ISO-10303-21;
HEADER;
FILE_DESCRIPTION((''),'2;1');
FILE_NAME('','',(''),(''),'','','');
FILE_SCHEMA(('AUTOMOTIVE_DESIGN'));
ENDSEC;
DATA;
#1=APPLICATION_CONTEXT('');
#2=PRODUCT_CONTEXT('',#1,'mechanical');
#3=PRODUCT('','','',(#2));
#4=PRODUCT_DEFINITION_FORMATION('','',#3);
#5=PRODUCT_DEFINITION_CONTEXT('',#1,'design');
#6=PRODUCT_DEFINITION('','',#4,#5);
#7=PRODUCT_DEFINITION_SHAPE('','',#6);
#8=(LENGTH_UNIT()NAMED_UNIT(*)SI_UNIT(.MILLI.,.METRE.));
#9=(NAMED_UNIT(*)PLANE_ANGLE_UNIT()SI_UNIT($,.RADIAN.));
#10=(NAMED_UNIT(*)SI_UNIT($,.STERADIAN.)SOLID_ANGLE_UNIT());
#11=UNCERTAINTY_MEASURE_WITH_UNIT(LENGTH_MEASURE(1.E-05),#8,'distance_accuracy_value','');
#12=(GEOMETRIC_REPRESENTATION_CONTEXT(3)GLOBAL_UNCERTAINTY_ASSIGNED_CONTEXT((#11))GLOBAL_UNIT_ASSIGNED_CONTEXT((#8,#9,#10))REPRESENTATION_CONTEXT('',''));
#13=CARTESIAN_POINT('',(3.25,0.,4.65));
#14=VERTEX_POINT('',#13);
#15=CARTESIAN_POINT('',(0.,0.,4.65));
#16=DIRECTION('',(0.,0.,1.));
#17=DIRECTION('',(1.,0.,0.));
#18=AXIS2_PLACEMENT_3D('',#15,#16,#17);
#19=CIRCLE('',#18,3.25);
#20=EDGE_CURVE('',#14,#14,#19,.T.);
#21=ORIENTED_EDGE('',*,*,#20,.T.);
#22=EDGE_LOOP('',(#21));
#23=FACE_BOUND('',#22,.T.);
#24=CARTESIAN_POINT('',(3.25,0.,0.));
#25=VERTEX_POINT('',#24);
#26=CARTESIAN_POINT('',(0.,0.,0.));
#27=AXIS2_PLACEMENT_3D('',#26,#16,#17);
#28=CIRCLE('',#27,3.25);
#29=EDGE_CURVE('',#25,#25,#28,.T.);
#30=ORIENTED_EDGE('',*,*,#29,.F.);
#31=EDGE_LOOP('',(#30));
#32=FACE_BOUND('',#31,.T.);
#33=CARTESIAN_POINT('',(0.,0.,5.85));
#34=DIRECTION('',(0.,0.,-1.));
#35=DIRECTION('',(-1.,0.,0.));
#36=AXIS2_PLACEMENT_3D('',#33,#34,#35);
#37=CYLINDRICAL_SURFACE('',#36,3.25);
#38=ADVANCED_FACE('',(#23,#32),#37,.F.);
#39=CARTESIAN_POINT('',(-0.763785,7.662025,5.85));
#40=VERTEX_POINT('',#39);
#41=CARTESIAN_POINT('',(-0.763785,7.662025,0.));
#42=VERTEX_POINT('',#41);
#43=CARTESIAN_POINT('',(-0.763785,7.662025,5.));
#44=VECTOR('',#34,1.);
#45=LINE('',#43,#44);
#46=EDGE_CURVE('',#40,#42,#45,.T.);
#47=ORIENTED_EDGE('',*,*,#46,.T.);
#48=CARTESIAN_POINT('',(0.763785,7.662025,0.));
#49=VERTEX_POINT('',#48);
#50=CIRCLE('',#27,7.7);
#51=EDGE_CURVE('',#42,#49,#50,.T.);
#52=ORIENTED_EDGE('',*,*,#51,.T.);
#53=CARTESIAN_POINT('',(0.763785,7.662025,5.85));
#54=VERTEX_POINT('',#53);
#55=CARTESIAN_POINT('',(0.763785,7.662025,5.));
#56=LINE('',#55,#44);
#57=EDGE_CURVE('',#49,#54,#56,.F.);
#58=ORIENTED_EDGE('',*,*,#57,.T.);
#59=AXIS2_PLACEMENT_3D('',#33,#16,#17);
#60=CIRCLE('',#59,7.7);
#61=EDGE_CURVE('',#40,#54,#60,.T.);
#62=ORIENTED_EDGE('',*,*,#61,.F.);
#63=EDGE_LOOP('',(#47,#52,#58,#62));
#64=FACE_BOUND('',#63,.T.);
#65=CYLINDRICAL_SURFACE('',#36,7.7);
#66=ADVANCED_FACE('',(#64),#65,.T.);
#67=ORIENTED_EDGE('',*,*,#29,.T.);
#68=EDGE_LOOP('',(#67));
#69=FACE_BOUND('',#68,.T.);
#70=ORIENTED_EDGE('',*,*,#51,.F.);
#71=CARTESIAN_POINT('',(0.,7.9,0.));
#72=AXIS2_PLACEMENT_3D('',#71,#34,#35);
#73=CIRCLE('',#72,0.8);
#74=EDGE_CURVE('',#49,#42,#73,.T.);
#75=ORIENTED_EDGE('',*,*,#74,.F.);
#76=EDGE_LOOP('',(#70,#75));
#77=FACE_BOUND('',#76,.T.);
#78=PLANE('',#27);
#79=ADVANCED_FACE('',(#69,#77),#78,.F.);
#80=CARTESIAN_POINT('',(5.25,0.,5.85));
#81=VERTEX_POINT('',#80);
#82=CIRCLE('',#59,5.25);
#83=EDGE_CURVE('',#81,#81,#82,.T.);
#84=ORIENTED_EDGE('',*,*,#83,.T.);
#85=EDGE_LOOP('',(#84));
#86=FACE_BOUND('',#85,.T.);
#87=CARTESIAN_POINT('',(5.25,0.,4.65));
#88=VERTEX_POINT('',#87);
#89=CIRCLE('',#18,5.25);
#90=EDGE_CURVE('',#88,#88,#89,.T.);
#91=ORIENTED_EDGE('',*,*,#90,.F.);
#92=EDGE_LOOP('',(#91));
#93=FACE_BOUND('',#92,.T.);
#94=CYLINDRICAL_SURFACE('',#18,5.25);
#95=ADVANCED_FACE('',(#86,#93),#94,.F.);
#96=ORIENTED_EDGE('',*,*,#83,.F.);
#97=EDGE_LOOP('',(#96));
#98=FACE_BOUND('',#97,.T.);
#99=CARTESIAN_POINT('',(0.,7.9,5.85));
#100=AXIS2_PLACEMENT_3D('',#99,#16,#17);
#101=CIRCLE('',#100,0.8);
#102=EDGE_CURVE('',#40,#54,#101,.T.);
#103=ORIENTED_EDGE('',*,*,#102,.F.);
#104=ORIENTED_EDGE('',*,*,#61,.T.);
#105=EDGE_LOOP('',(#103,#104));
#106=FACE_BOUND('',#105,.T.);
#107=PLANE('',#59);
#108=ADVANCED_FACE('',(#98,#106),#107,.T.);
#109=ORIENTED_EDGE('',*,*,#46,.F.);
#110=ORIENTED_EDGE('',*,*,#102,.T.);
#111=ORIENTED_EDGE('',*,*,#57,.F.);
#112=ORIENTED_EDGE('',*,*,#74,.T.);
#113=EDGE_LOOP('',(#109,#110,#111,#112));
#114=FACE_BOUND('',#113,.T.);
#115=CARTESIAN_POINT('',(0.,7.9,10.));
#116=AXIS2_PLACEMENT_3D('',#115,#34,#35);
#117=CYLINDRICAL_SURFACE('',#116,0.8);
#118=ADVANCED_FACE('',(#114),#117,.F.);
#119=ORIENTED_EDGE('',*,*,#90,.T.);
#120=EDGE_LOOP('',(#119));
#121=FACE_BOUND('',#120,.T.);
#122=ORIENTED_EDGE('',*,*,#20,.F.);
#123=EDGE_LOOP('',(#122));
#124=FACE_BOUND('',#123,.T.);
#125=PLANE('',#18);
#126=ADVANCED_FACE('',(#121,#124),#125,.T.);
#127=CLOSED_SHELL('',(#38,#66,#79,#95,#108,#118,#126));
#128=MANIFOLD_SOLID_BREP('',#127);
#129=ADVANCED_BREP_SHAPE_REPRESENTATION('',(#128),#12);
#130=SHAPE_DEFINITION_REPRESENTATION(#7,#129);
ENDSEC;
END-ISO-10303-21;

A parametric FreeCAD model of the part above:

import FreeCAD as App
import Part
import Sketcher
Q = App.Units.Quantity

doc = App.newDocument("Part")
body = doc.addObject("PartDesign::Body", "Body")

sketch1 = doc.addObject("Sketcher::SketchObject", "Sketch")
body.addObject(sketch1)
sketch1.AttachmentSupport = (doc.XY_Plane, [""])
sketch1.MapMode = "FlatFace"
sketch1.addGeometry(Part.Circle(App.Vector(0, 0, 0), App.Vector(0, 0, 1), 7.7), False)
sketch1.addGeometry(Part.Circle(App.Vector(0, 0, 0), App.Vector(0, 0, 1), 3.2), False)
sketch1.addConstraint(Sketcher.Constraint("Coincident", 0, 3, -1, 1))
sketch1.addConstraint(Sketcher.Constraint("Coincident", 1, 3, -1, 1))
sketch1.addConstraint(Sketcher.Constraint("Diameter", 0, Q("15.4 mm")))
sketch1.addConstraint(Sketcher.Constraint("Diameter", 1, Q("6.5 mm")))
pad1 = doc.addObject("PartDesign::Pad", "Pad")
body.addObject(pad1)
pad1.Profile = sketch1
pad1.Length = 5.85

sketch2 = doc.addObject("Sketcher::SketchObject", "Sketch001")
body.addObject(sketch2)
sketch2.AttachmentSupport = (doc.XY_Plane, [""])
sketch2.MapMode = "FlatFace"
sketch2.AttachmentOffset = App.Placement(App.Vector(0, 0, 5.85), App.Rotation())
sketch2.addGeometry(Part.Circle(App.Vector(0, 0, 0), App.Vector(0, 0, 1), 5), False)
sketch2.addConstraint(Sketcher.Constraint("Coincident", 0, 3, -1, 1))
sketch2.addConstraint(Sketcher.Constraint("Diameter", 0, Q("10.5 mm")))
pocket1 = doc.addObject("PartDesign::Pocket", "Pocket")
body.addObject(pocket1)
pocket1.Profile = sketch2
pocket1.Length = 1.2

sketch3 = doc.addObject("Sketcher::SketchObject", "Sketch002")
body.addObject(sketch3)
sketch3.AttachmentSupport = (doc.XY_Plane, [""])
sketch3.MapMode = "FlatFace"
sketch3.addGeometry(Part.Circle(App.Vector(0, 7.9, 0), App.Vector(0, 0, 1), 0.8), False)
sketch3.addConstraint(Sketcher.Constraint("PointOnObject", 0, 3, -2))
sketch3.addConstraint(Sketcher.Constraint("Diameter", 0, Q("1.6 mm")))
sketch3.addConstraint(Sketcher.Constraint("DistanceY", -1, 1, 0, 3, Q("7.9 mm")))
pocket2 = doc.addObject("PartDesign::Pocket", "Pocket001")
body.addObject(pocket2)
pocket2.Profile = sketch3
pocket2.Length = 10
pocket2.Reversed = True

doc.recompute()
